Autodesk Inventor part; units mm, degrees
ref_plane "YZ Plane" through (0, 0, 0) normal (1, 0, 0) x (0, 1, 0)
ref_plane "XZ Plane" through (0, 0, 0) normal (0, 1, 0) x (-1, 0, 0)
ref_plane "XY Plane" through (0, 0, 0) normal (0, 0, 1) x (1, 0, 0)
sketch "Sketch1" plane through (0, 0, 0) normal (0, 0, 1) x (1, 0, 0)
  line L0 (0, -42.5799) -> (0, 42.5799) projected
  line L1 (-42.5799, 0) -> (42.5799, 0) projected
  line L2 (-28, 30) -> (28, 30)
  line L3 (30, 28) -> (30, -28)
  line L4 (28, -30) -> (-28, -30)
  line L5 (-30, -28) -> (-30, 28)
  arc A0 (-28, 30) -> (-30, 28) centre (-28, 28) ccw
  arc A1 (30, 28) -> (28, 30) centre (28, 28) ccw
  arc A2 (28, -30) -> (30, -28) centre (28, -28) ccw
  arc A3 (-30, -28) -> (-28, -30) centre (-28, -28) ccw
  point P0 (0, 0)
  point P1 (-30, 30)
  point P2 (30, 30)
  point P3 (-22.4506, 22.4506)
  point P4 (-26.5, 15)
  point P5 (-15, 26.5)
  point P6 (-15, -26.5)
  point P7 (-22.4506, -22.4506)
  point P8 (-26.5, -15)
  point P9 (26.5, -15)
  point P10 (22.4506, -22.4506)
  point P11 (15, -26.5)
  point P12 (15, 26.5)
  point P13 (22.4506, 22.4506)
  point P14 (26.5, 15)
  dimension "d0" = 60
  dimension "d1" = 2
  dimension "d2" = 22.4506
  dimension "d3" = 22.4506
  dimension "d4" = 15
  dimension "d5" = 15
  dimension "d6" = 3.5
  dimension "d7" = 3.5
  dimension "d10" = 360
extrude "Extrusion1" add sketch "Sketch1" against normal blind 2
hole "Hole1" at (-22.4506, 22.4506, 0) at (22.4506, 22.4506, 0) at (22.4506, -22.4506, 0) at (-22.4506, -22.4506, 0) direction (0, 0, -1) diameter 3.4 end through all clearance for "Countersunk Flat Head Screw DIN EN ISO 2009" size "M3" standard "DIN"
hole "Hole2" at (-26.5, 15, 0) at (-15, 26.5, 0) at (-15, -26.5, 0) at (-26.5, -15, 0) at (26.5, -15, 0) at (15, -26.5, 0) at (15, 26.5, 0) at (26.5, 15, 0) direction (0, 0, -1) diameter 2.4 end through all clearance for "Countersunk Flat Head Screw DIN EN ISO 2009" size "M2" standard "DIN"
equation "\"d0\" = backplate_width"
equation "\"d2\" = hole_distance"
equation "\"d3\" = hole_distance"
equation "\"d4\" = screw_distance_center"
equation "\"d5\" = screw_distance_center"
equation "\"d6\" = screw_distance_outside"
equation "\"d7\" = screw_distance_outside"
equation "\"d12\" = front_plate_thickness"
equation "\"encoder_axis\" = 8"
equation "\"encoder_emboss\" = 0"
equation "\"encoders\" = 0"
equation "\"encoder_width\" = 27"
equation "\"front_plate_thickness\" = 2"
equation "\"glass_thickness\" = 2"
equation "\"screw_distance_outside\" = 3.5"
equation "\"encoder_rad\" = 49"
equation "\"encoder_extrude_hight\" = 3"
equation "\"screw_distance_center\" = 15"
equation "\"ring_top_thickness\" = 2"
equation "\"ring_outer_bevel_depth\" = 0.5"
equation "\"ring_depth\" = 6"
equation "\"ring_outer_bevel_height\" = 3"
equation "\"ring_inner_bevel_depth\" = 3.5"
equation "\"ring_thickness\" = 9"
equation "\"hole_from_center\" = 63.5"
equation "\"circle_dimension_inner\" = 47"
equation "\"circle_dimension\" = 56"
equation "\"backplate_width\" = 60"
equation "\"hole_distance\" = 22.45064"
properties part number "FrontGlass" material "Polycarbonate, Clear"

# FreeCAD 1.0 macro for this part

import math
import FreeCAD as App
import Part
import Sketcher

V = App.Vector
Q = App.Units.Quantity

doc = App.newDocument("Part")
body = doc.addObject("PartDesign::Body", "Body")

sketch1 = body.newObject("Sketcher::SketchObject", "Sketch")
sketch1.AttachmentSupport = (doc.getObject("XY_Plane"), [""])
sketch1.MapMode = "FlatFace"
sketch1.addGeometry([
    Part.LineSegment(V(-28, -30, 0), V(28, -30, 0)),
    Part.ArcOfCircle(Part.Circle(V(28, -28, 0), V(0, 0, 1), 2), math.radians(-90), math.radians(0)),
    Part.LineSegment(V(30, -28, 0), V(30, 28, 0)),
    Part.ArcOfCircle(Part.Circle(V(28, 28, 0), V(0, 0, 1), 2), math.radians(0), math.radians(90)),
    Part.LineSegment(V(28, 30, 0), V(-28, 30, 0)),
    Part.ArcOfCircle(Part.Circle(V(-28, 28, 0), V(0, 0, 1), 2), math.radians(90), math.radians(180)),
    Part.LineSegment(V(-30, 28, 0), V(-30, -28, 0)),
    Part.ArcOfCircle(Part.Circle(V(-28, -28, 0), V(0, 0, 1), 2), math.radians(180), math.radians(270)),
], False)
sketch1.addConstraint([
    Sketcher.Constraint("Tangent", 0, 2, 1, 1),
    Sketcher.Constraint("Tangent", 1, 2, 2, 1),
    Sketcher.Constraint("Tangent", 2, 2, 3, 1),
    Sketcher.Constraint("Tangent", 3, 2, 4, 1),
    Sketcher.Constraint("Tangent", 4, 2, 5, 1),
    Sketcher.Constraint("Tangent", 5, 2, 6, 1),
    Sketcher.Constraint("Tangent", 6, 2, 7, 1),
    Sketcher.Constraint("Tangent", 7, 2, 0, 1),
    Sketcher.Constraint("Horizontal", 0),
    Sketcher.Constraint("Vertical", 2),
    Sketcher.Constraint("Horizontal", 4),
    Sketcher.Constraint("Vertical", 6),
    Sketcher.Constraint("Equal", 1, 3),
    Sketcher.Constraint("Equal", 3, 5),
    Sketcher.Constraint("Equal", 5, 7),
    Sketcher.Constraint("Symmetric", 1, 3, 5, 3, -1, 1),
    Sketcher.Constraint("Equal", 4, 2),
    Sketcher.Constraint("Radius", 1, Q("2 mm")),
    Sketcher.Constraint("DistanceX", 0, 1, 0, 2, Q("56 mm")),
])
pad1 = body.newObject("PartDesign::Pad", "Pad")
pad1.Profile = sketch1
pad1.Length = 2
pad1.Reversed = True

sketch2 = body.newObject("Sketcher::SketchObject", "Sketch001")
sketch2.AttachmentSupport = (doc.getObject("XY_Plane"), [""])
sketch2.MapMode = "FlatFace"
sketch2.addGeometry([
    Part.Circle(V(-22.4506, 22.4506, 0), V(0, 0, 1), 1.7),
    Part.Circle(V(22.4506, 22.4506, 0), V(0, 0, 1), 1.7),
    Part.Circle(V(22.4506, -22.4506, 0), V(0, 0, 1), 1.7),
    Part.Circle(V(-22.4506, -22.4506, 0), V(0, 0, 1), 1.7),
], False)
sketch2.addConstraint([
    Sketcher.Constraint("Equal", 0, 1),
    Sketcher.Constraint("Equal", 1, 2),
    Sketcher.Constraint("Equal", 2, 3),
    Sketcher.Constraint("Symmetric", 0, 3, 2, 3, -1, 1),
    Sketcher.Constraint("Symmetric", 1, 3, 3, 3, -1, 1),
    Sketcher.Constraint("Symmetric", 0, 3, 1, 3, -2),
    Sketcher.Constraint("Diameter", 0, Q("3.4 mm")),
    Sketcher.Constraint("DistanceX", 0, 3, -1, 1, Q("22.4506 mm")),
    Sketcher.Constraint("DistanceY", -1, 1, 0, 3, Q("22.4506 mm")),
])
doc.recompute()
hole = body.newObject("PartDesign::Hole", "Hole")
hole.Profile = sketch2
hole.ThreadType = "None"
hole.Diameter = 3.4
hole.DepthType = "ThroughAll"

sketch3 = body.newObject("Sketcher::SketchObject", "Sketch002")
sketch3.AttachmentSupport = (doc.getObject("XY_Plane"), [""])
sketch3.MapMode = "FlatFace"
sketch3.addGeometry([
    Part.Circle(V(-26.5, 15, 0), V(0, 0, 1), 1.2),
    Part.Circle(V(-15, 26.5, 0), V(0, 0, 1), 1.2),
    Part.Circle(V(-15, -26.5, 0), V(0, 0, 1), 1.2),
    Part.Circle(V(-26.5, -15, 0), V(0, 0, 1), 1.2),
    Part.Circle(V(26.5, -15, 0), V(0, 0, 1), 1.2),
    Part.Circle(V(15, -26.5, 0), V(0, 0, 1), 1.2),
    Part.Circle(V(15, 26.5, 0), V(0, 0, 1), 1.2),
    Part.Circle(V(26.5, 15, 0), V(0, 0, 1), 1.2),
], False)
sketch3.addConstraint([
    Sketcher.Constraint("Equal", 0, 1),
    Sketcher.Constraint("Equal", 1, 2),
    Sketcher.Constraint("Equal", 2, 3),
    Sketcher.Constraint("Equal", 3, 4),
    Sketcher.Constraint("Equal", 4, 5),
    Sketcher.Constraint("Equal", 5, 6),
    Sketcher.Constraint("Equal", 6, 7),
    Sketcher.Constraint("Symmetric", 0, 3, 4, 3, -1, 1),
    Sketcher.Constraint("Symmetric", 1, 3, 5, 3, -1, 1),
    Sketcher.Constraint("Symmetric", 2, 3, 6, 3, -1, 1),
    Sketcher.Constraint("Symmetric", 3, 3, 7, 3, -1, 1),
    Sketcher.Constraint("Symmetric", 3, 3, 4, 3, -2),
    Sketcher.Constraint("Symmetric", 2, 3, 5, 3, -2),
    Sketcher.Constraint("Diameter", 0, Q("2.4 mm")),
    Sketcher.Constraint("DistanceY", -1, 1, 0, 3, Q("15 mm")),
    Sketcher.Constraint("DistanceX", 1, 3, -1, 1, Q("15 mm")),
    Sketcher.Constraint("DistanceY", 2, 3, 1, 3, Q("53 mm")),
    Sketcher.Constraint("DistanceX", 3, 3, 4, 3, Q("53 mm")),
])
doc.recompute()
hole2 = body.newObject("PartDesign::Hole", "Hole001")
hole2.Profile = sketch3
hole2.ThreadType = "None"
hole2.Diameter = 2.4
hole2.DepthType = "ThroughAll"

doc.recompute()
